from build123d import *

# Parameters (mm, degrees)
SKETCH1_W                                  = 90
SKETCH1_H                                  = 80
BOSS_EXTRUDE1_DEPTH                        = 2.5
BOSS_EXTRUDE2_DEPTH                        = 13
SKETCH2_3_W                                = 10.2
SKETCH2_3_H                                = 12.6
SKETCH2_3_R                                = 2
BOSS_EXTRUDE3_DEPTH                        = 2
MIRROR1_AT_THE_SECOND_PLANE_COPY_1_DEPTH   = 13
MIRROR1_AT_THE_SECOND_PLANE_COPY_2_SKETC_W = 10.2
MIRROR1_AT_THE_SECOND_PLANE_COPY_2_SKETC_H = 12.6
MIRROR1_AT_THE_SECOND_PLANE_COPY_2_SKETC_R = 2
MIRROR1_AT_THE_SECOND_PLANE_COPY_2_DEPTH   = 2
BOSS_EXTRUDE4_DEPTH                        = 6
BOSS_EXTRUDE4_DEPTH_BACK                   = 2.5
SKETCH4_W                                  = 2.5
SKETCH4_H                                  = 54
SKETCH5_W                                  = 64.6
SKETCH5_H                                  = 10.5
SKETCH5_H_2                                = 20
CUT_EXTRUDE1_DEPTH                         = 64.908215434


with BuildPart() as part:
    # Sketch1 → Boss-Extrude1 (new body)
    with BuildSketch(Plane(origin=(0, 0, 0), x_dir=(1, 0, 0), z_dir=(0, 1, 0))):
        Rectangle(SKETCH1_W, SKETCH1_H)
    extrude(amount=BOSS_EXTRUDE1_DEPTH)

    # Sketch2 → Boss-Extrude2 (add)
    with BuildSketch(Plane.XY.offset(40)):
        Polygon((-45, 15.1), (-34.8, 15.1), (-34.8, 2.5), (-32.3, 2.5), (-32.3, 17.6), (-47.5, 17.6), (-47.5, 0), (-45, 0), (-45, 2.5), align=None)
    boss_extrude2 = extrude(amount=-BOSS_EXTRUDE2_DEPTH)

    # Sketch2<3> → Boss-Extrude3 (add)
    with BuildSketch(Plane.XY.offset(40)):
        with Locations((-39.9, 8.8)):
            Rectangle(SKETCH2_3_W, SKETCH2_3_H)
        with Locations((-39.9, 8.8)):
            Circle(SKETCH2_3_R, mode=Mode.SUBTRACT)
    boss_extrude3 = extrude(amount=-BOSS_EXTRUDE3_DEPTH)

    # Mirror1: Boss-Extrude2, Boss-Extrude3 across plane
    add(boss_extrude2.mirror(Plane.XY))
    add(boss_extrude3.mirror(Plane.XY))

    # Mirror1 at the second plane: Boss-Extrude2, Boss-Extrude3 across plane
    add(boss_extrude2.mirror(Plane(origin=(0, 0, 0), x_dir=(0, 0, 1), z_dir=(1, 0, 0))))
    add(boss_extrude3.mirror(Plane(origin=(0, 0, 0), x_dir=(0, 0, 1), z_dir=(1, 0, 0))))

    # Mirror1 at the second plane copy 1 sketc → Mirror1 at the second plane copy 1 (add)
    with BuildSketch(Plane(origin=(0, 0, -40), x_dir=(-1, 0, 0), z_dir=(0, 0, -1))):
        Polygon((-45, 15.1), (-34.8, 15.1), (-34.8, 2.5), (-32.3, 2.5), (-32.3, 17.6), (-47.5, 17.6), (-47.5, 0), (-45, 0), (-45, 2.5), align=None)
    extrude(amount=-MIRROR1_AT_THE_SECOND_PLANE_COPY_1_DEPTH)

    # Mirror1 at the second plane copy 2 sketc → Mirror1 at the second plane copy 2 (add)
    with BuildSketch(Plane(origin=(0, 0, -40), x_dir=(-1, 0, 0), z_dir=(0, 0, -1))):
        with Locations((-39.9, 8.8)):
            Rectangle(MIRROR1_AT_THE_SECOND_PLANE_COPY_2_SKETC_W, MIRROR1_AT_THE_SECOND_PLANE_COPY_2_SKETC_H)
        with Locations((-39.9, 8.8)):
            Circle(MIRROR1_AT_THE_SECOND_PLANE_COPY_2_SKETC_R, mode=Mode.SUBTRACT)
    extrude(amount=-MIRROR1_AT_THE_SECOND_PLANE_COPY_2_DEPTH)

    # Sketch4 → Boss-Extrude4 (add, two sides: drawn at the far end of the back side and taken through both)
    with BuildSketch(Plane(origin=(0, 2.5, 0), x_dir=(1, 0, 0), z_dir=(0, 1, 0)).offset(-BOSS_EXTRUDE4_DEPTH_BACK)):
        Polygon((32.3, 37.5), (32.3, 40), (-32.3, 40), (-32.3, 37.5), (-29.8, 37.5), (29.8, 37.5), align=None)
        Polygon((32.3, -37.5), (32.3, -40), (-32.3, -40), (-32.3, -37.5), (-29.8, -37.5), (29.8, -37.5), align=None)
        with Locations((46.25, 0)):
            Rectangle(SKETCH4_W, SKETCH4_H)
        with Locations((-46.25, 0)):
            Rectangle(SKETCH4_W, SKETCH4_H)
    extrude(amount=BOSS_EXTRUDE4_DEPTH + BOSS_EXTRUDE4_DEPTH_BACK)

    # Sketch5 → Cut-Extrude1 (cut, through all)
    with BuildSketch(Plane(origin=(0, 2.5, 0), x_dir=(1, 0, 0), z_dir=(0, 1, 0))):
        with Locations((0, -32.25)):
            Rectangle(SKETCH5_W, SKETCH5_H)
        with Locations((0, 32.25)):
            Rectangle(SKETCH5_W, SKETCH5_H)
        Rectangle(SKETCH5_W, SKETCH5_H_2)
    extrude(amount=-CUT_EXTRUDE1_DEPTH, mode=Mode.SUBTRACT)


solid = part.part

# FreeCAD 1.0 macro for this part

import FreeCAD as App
import Part
import Sketcher
Q = App.Units.Quantity


def add_polygon(sketch, points):
    """Adds a closed chain of lines whose ends are joined by coincident constraints."""
    first, n = sketch.GeometryCount, len(points)
    for a, b in zip(points, points[1:] + points[:1]):
        sketch.addGeometry(Part.LineSegment(App.Vector(*a, 0), App.Vector(*b, 0)), False)
    for i in range(n):
        sketch.addConstraint(Sketcher.Constraint("Coincident", first + i, 2, first + (i + 1) % n, 1))

doc = App.newDocument("Part")
body = doc.addObject("PartDesign::Body", "Body")

sketch1 = doc.addObject("Sketcher::SketchObject", "Sketch")
body.addObject(sketch1)
sketch1.AttachmentSupport = (doc.XZ_Plane, [""])
sketch1.MapMode = "FlatFace"
add_polygon(sketch1, [(-45, -40), (-45, 40), (45, 40), (45, -40)])
sketch1.addConstraint([
    Sketcher.Constraint("Vertical", 0),
    Sketcher.Constraint("Horizontal", 1),
    Sketcher.Constraint("Vertical", 2),
    Sketcher.Constraint("Horizontal", 3),
    Sketcher.Constraint("Symmetric", 0, 2, 2, 2, -1, 1),
    Sketcher.Constraint("DistanceX", 1, 1, 1, 2, Q("90 mm")),
    Sketcher.Constraint("DistanceY", 0, 1, 0, 2, Q("80 mm")),
])
pad1 = doc.addObject("PartDesign::Pad", "Pad")
body.addObject(pad1)
pad1.Profile = sketch1
pad1.Length = 2.5
pad1.Reversed = True

sketch2 = doc.addObject("Sketcher::SketchObject", "Sketch001")
body.addObject(sketch2)
sketch2.AttachmentSupport = (doc.XY_Plane, [""])
sketch2.MapMode = "FlatFace"
sketch2.AttachmentOffset = App.Placement(App.Vector(0, 0, 40), App.Rotation())
add_polygon(sketch2, [(-45, 15.1), (-34.8, 15.1), (-34.8, 2.5), (-32.3, 2.5), (-32.3, 17.6), (-47.5, 17.6), (-47.5, 0), (-45, 0)])
sketch2.addConstraint([
    Sketcher.Constraint("Horizontal", 0),
    Sketcher.Constraint("Vertical", 1),
    Sketcher.Constraint("Horizontal", 2),
    Sketcher.Constraint("Vertical", 3),
    Sketcher.Constraint("Horizontal", 4),
    Sketcher.Constraint("Vertical", 5),
    Sketcher.Constraint("Horizontal", 6),
    Sketcher.Constraint("Vertical", 7),
    Sketcher.Constraint("PointOnObject", 5, 2, -1),
    Sketcher.Constraint("Equal", 2, 6),
    Sketcher.Constraint("Equal", 3, 7),
    Sketcher.Constraint("DistanceX", 0, 1, 0, 2, Q("10.2 mm")),
    Sketcher.Constraint("DistanceX", 2, 1, 2, 2, Q("2.5 mm")),
    Sketcher.Constraint("DistanceY", 1, 2, 1, 1, Q("12.6 mm")),
    Sketcher.Constraint("DistanceY", 3, 1, 3, 2, Q("15.1 mm")),
    Sketcher.Constraint("DistanceX", 6, 2, -1, 1, Q("45 mm")),
])
pad2 = doc.addObject("PartDesign::Pad", "Pad001")
body.addObject(pad2)
pad2.Profile = sketch2
pad2.Length = 13
pad2.Reversed = True

sketch3 = doc.addObject("Sketcher::SketchObject", "Sketch002")
body.addObject(sketch3)
sketch3.AttachmentSupport = (doc.XY_Plane, [""])
sketch3.MapMode = "FlatFace"
sketch3.AttachmentOffset = App.Placement(App.Vector(0, 0, 40), App.Rotation())
add_polygon(sketch3, [(-45, 15.1), (-45, 2.5), (-34.8, 2.5), (-34.8, 15.1)])
sketch3.addGeometry(Part.Circle(App.Vector(-39.9, 8.8, 0), App.Vector(0, 0, 1), 2), False)
sketch3.addConstraint([
    Sketcher.Constraint("Vertical", 0),
    Sketcher.Constraint("Horizontal", 1),
    Sketcher.Constraint("Vertical", 2),
    Sketcher.Constraint("Horizontal", 3),
    Sketcher.Constraint("Diameter", 4, Q("4 mm")),
    Sketcher.Constraint("DistanceX", 1, 1, 1, 2, Q("10.2 mm")),
    Sketcher.Constraint("DistanceY", 0, 2, 0, 1, Q("12.6 mm")),
    Sketcher.Constraint("DistanceX", 0, 2, -1, 1, Q("45 mm")),
    Sketcher.Constraint("DistanceX", 4, 3, -1, 1, Q("39.9 mm")),
    Sketcher.Constraint("DistanceY", -1, 1, 4, 3, Q("8.8 mm")),
    Sketcher.Constraint("DistanceY", -1, 1, 0, 2, Q("2.5 mm")),
])
pad3 = doc.addObject("PartDesign::Pad", "Pad002")
body.addObject(pad3)
pad3.Profile = sketch3
pad3.Length = 2
pad3.Reversed = True
doc.recompute()

mirrored = doc.addObject("PartDesign::Mirrored", "Mirrored")
body.addObject(mirrored)
mirrored.Originals = [pad2, pad3]
mirrored.MirrorPlane = (doc.XY_Plane, [""])
body.Tip = mirrored
doc.recompute()

mirrored2 = doc.addObject("PartDesign::Mirrored", "Mirrored001")
body.addObject(mirrored2)
mirrored2.Originals = [pad2, pad3]
mirrored2.MirrorPlane = (doc.YZ_Plane, [""])
body.Tip = mirrored2

sketch4 = doc.addObject("Sketcher::SketchObject", "Sketch003")
body.addObject(sketch4)
sketch4.AttachmentSupport = (doc.XY_Plane, [""])
sketch4.MapMode = "FlatFace"
sketch4.AttachmentOffset = App.Placement(App.Vector(0, 0, -40), App.Rotation())
add_polygon(sketch4, [(45, 15.1), (34.8, 15.1), (34.8, 2.5), (32.3, 2.5), (32.3, 17.6), (47.5, 17.6), (47.5, 0), (45, 0)])
sketch4.addConstraint([
    Sketcher.Constraint("Horizontal", 0),
    Sketcher.Constraint("Vertical", 1),
    Sketcher.Constraint("Horizontal", 2),
    Sketcher.Constraint("Vertical", 3),
    Sketcher.Constraint("Horizontal", 4),
    Sketcher.Constraint("Vertical", 5),
    Sketcher.Constraint("Horizontal", 6),
    Sketcher.Constraint("Vertical", 7),
    Sketcher.Constraint("PointOnObject", 5, 2, -1),
    Sketcher.Constraint("Equal", 2, 6),
    Sketcher.Constraint("Equal", 3, 7),
    Sketcher.Constraint("DistanceX", 0, 2, 0, 1, Q("10.2 mm")),
    Sketcher.Constraint("DistanceX", 2, 2, 2, 1, Q("2.5 mm")),
    Sketcher.Constraint("DistanceY", 1, 2, 1, 1, Q("12.6 mm")),
    Sketcher.Constraint("DistanceY", 3, 1, 3, 2, Q("15.1 mm")),
    Sketcher.Constraint("DistanceX", -1, 1, 6, 2, Q("45 mm")),
])
pad4 = doc.addObject("PartDesign::Pad", "Pad003")
body.addObject(pad4)
pad4.Profile = sketch4
pad4.Length = 13

sketch5 = doc.addObject("Sketcher::SketchObject", "Sketch004")
body.addObject(sketch5)
sketch5.AttachmentSupport = (doc.XY_Plane, [""])
sketch5.MapMode = "FlatFace"
sketch5.AttachmentOffset = App.Placement(App.Vector(0, 0, -40), App.Rotation())
add_polygon(sketch5, [(45, 15.1), (45, 2.5), (34.8, 2.5), (34.8, 15.1)])
sketch5.addGeometry(Part.Circle(App.Vector(39.9, 8.8, 0), App.Vector(0, 0, 1), 2), False)
sketch5.addConstraint([
    Sketcher.Constraint("Vertical", 0),
    Sketcher.Constraint("Horizontal", 1),
    Sketcher.Constraint("Vertical", 2),
    Sketcher.Constraint("Horizontal", 3),
    Sketcher.Constraint("Diameter", 4, Q("4 mm")),
    Sketcher.Constraint("DistanceX", 1, 2, 1, 1, Q("10.2 mm")),
    Sketcher.Constraint("DistanceY", 0, 2, 0, 1, Q("12.6 mm")),
    Sketcher.Constraint("DistanceX", -1, 1, 0, 2, Q("45 mm")),
    Sketcher.Constraint("DistanceX", -1, 1, 4, 3, Q("39.9 mm")),
    Sketcher.Constraint("DistanceY", -1, 1, 4, 3, Q("8.8 mm")),
    Sketcher.Constraint("DistanceY", -1, 1, 0, 2, Q("2.5 mm")),
])
pad5 = doc.addObject("PartDesign::Pad", "Pad004")
body.addObject(pad5)
pad5.Profile = sketch5
pad5.Length = 2

sketch6 = doc.addObject("Sketcher::SketchObject", "Sketch005")
body.addObject(sketch6)
sketch6.AttachmentSupport = (doc.XZ_Plane, [""])
sketch6.MapMode = "FlatFace"
sketch6.AttachmentOffset = App.Placement(App.Vector(0, 0, -2.5), App.Rotation())
add_polygon(sketch6, [(32.3, -37.5), (32.3, -40), (-32.3, -40), (-32.3, -37.5)])
add_polygon(sketch6, [(32.3, 40), (32.3, 37.5), (-32.3, 37.5), (-32.3, 40)])
add_polygon(sketch6, [(45, -27), (45, 27), (47.5, 27), (47.5, -27)])
add_polygon(sketch6, [(-47.5, -27), (-47.5, 27), (-45, 27), (-45, -27)])
sketch6.addConstraint([
    Sketcher.Constraint("Vertical", 0),
    Sketcher.Constraint("Horizontal", 1),
    Sketcher.Constraint("Vertical", 2),
    Sketcher.Constraint("Horizontal", 3),
    Sketcher.Constraint("Vertical", 4),
    Sketcher.Constraint("Horizontal", 5),
    Sketcher.Constraint("Vertical", 6),
    Sketcher.Constraint("Horizontal", 7),
    Sketcher.Constraint("Vertical", 8),
    Sketcher.Constraint("Horizontal", 9),
    Sketcher.Constraint("Vertical", 10),
    Sketcher.Constraint("Horizontal", 11),
    Sketcher.Constraint("Vertical", 12),
    Sketcher.Constraint("Horizontal", 13),
    Sketcher.Constraint("Vertical", 14),
    Sketcher.Constraint("Horizontal", 15),
    Sketcher.Constraint("Symmetric", 2, 2, 4, 2, -1, 1),
    Sketcher.Constraint("Symmetric", 0, 2, 6, 2, -1, 1),
    Sketcher.Constraint("Symmetric", 10, 2, 12, 2, -1, 1),
    Sketcher.Constraint("Symmetric", 8, 2, 14, 2, -1, 1),
    Sketcher.Constraint("Horizontal", 9, 2, 12, 2),
    Sketcher.Constraint("Vertical", 3, 2, 4, 2),
    Sketcher.Constraint("Equal", 15, 0),
    Sketcher.Constraint("DistanceY", 8, 1, 8, 2, Q("54 mm")),
    Sketcher.Constraint("DistanceX", 1, 2, 1, 1, Q("64.6 mm")),
    Sketcher.Constraint("DistanceX", 9, 1, 9, 2, Q("2.5 mm")),
    Sketcher.Constraint("DistanceY", 0, 2, -1, 1, Q("40 mm")),
    Sketcher.Constraint("DistanceX", -1, 1, 8, 2, Q("45 mm")),
])
pad6 = doc.addObject("PartDesign::Pad", "Pad005")
body.addObject(pad6)
pad6.Profile = sketch6
pad6.Type = "TwoLengths"
pad6.Length = 6
pad6.Length2 = 2.5
pad6.Reversed = True

sketch7 = doc.addObject("Sketcher::SketchObject", "Sketch006")
body.addObject(sketch7)
sketch7.AttachmentSupport = (doc.XZ_Plane, [""])
sketch7.MapMode = "FlatFace"
sketch7.AttachmentOffset = App.Placement(App.Vector(0, 0, -2.5), App.Rotation())
add_polygon(sketch7, [(-32, 27), (-32, 38), (32, 38), (32, 27)])
add_polygon(sketch7, [(-32, -38), (-32, -27), (32, -27), (32, -38)])
add_polygon(sketch7, [(-32, -10), (-32, 10), (32, 10), (32, -10)])
sketch7.addConstraint([
    Sketcher.Constraint("Vertical", 0),
    Sketcher.Constraint("Horizontal", 1),
    Sketcher.Constraint("Vertical", 2),
    Sketcher.Constraint("Horizontal", 3),
    Sketcher.Constraint("Vertical", 4),
    Sketcher.Constraint("Horizontal", 5),
    Sketcher.Constraint("Vertical", 6),
    Sketcher.Constraint("Horizontal", 7),
    Sketcher.Constraint("Vertical", 8),
    Sketcher.Constraint("Horizontal", 9),
    Sketcher.Constraint("Vertical", 10),
    Sketcher.Constraint("Horizontal", 11),
    Sketcher.Constraint("Symmetric", 2, 2, 4, 2, -1, 1),
    Sketcher.Constraint("Symmetric", 0, 2, 6, 2, -1, 1),
    Sketcher.Constraint("Symmetric", 8, 2, 10, 2, -1, 1),
    Sketcher.Constraint("Vertical", 3, 2, 4, 2),
    Sketcher.Constraint("Vertical", 7, 2, 8, 2),
    Sketcher.Constraint("DistanceY", 8, 1, 8, 2, Q("20 mm")),
    Sketcher.Constraint("DistanceX", 1, 1, 1, 2, Q("64.6 mm")),
    Sketcher.Constraint("DistanceY", 0, 1, 0, 2, Q("10.5 mm")),
    Sketcher.Constraint("DistanceY", -1, 1, 2, 2, Q("27 mm")),
])
pocket1 = doc.addObject("PartDesign::Pocket", "Pocket")
body.addObject(pocket1)
pocket1.Profile = sketch7
pocket1.Type = "ThroughAll"
pocket1.Reversed = True

doc.recompute()
